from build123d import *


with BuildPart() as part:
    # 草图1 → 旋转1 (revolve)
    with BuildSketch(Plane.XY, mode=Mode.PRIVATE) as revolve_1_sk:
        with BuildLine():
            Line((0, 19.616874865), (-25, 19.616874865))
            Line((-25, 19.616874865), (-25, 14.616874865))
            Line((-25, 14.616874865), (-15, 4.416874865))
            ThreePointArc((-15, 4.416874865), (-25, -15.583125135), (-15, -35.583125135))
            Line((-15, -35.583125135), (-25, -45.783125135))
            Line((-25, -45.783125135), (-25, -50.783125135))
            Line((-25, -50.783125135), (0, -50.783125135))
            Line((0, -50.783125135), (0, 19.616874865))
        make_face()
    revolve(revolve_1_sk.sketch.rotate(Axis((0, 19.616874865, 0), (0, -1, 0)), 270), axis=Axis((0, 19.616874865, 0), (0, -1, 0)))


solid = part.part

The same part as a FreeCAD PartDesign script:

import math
import FreeCAD as App
import Part
import Sketcher
from FreeCAD import Vector

doc = App.newDocument("Part")
body = doc.addObject("PartDesign::Body", "Body")

sketch1 = doc.addObject("Sketcher::SketchObject", "Sketch")
body.addObject(sketch1)
sketch1.AttachmentSupport = (doc.XY_Plane, [""])
sketch1.MapMode = "FlatFace"
sketch1.addGeometry([
    Part.LineSegment(Vector(0, 19.616875, 0), Vector(-25, 19.616875, 0)),
    Part.LineSegment(Vector(-25, 19.616875, 0), Vector(-25, 14.616875, 0)),
    Part.LineSegment(Vector(-25, 14.616875, 0), Vector(-15, 4.416875, 0)),
    Part.ArcOfCircle(Part.Circle(Vector(0, -15.583125, 0), Vector(0, 0, 1), 25), math.radians(126.869898), math.radians(233.130102)),
    Part.LineSegment(Vector(-15, -35.583125, 0), Vector(-25, -45.783125, 0)),
    Part.LineSegment(Vector(-25, -45.783125, 0), Vector(-25, -50.783125, 0)),
    Part.LineSegment(Vector(-25, -50.783125, 0), Vector(0, -50.783125, 0)),
    Part.LineSegment(Vector(0, -50.783125, 0), Vector(0, 19.616875, 0)),
], False)
sketch1.addConstraint([
    Sketcher.Constraint("Coincident", 0, 2, 1, 1),
    Sketcher.Constraint("Coincident", 1, 2, 2, 1),
    Sketcher.Constraint("Coincident", 2, 2, 3, 1),
    Sketcher.Constraint("Coincident", 3, 2, 4, 1),
    Sketcher.Constraint("Coincident", 4, 2, 5, 1),
    Sketcher.Constraint("Coincident", 5, 2, 6, 1),
    Sketcher.Constraint("Coincident", 6, 2, 7, 1),
    Sketcher.Constraint("Coincident", 7, 2, 0, 1),
    Sketcher.Constraint("Horizontal", 0),
    Sketcher.Constraint("Vertical", 1),
    Sketcher.Constraint("Vertical", 5),
    Sketcher.Constraint("Horizontal", 6),
    Sketcher.Constraint("Vertical", 7),
    Sketcher.Constraint("PointOnObject", 3, 3, -2),
    Sketcher.Constraint("PointOnObject", 6, 2, -2),
    Sketcher.Constraint("Vertical", 2, 2, 3, 2),
    Sketcher.Constraint("Vertical", 1, 2, 4, 2),
    Sketcher.Constraint("Equal", 1, 5),
    Sketcher.Constraint("Equal", 2, 4),
    Sketcher.Constraint("Radius", 3, 25.0),
    Sketcher.Constraint("DistanceX", 0, 2, 0, 1, 25.0),
    Sketcher.Constraint("DistanceY", 1, 2, 1, 1, 5.0),
    Sketcher.Constraint("DistanceY", 7, 1, 7, 2, 70.4),
    Sketcher.Constraint("DistanceX", 2, 2, -1, 1, 15.0),
    Sketcher.Constraint("DistanceY", 3, 3, -1, 1, 15.583125),
])
revolution = doc.addObject("PartDesign::Revolution", "Revolution")
body.addObject(revolution)
revolution.Profile = sketch1
revolution.ReferenceAxis = (sketch1, ["V_Axis"])
revolution.Angle = 360

doc.recompute()
